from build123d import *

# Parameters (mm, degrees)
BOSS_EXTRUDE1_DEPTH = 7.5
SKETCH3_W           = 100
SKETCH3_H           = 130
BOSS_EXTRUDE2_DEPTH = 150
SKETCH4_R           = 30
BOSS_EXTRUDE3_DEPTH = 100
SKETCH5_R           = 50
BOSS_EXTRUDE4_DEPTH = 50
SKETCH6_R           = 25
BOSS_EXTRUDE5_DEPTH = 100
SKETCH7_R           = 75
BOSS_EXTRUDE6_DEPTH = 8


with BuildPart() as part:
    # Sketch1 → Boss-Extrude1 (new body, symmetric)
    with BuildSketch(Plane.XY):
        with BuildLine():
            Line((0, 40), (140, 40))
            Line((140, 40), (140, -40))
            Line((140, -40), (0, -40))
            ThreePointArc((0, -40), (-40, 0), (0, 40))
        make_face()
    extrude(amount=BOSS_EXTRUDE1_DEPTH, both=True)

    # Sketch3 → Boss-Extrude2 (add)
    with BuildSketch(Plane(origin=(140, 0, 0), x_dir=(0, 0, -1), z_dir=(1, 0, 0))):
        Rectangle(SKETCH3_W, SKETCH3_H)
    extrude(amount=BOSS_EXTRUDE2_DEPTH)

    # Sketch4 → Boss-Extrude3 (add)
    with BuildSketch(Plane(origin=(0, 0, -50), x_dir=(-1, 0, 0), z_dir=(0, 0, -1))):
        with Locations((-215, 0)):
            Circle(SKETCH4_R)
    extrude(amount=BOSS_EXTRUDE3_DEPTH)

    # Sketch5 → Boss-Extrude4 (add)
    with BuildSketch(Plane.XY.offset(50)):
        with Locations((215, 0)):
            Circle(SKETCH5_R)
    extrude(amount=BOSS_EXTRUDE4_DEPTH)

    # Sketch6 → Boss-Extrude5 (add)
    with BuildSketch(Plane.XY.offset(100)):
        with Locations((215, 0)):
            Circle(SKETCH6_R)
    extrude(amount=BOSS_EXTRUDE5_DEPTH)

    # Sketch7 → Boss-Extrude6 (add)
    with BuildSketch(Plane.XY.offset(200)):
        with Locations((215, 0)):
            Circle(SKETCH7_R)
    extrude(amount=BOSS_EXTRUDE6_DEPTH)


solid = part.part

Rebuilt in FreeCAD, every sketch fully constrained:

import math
import FreeCAD as App
import Part
import Sketcher
from FreeCAD import Vector
Q = App.Units.Quantity


def add_polygon(sketch, points):
    """Adds a closed chain of lines whose ends are joined by coincident constraints."""
    first, n = sketch.GeometryCount, len(points)
    for a, b in zip(points, points[1:] + points[:1]):
        sketch.addGeometry(Part.LineSegment(App.Vector(*a, 0), App.Vector(*b, 0)), False)
    for i in range(n):
        sketch.addConstraint(Sketcher.Constraint("Coincident", first + i, 2, first + (i + 1) % n, 1))

doc = App.newDocument("Part")
params = doc.addObject("Spreadsheet::Sheet", "Params")
for row, (alias, value) in enumerate([
    ("sketch1_radius", "40 mm"),
    ("sketch1_width", "140 mm"),
    ("pad1_length", "15 mm"),
    ("sketch2_width", "130 mm"),
    ("sketch2_height", "100 mm"),
    ("pad2_length", "150 mm"),
    ("sketch3_diameter", "60 mm"),
    ("pad3_length", "100 mm"),
    ("sketch4_diameter", "100 mm"),
    ("pad4_length", "50 mm"),
    ("sketch5_diameter", "50 mm"),
    ("pad5_length", "100 mm"),
    ("sketch6_diameter", "150 mm"),
    ("pad6_length", "8 mm"),
], start=1):
    params.set(f"A{row}", alias)
    params.set(f"B{row}", "=" + value)
    params.setAlias(f"B{row}", alias)

body = doc.addObject("PartDesign::Body", "Body")

# Sketch on XY plane
sketch1 = doc.addObject("Sketcher::SketchObject", "Sketch")
body.addObject(sketch1)
sketch1.AttachmentSupport = (doc.XY_Plane, [""])
sketch1.MapMode = "FlatFace"
sketch1.addGeometry([
    Part.LineSegment(Vector(140, 40, 0), Vector(0, 40, 0)),
    Part.ArcOfCircle(Part.Circle(Vector(0, 0, 0), Vector(0, 0, 1), 40), math.radians(90), math.radians(270)),
    Part.LineSegment(Vector(0, -40, 0), Vector(140, -40, 0)),
    Part.LineSegment(Vector(140, -40, 0), Vector(140, 40, 0)),
], False)
sketch1.addConstraint([
    Sketcher.Constraint("Tangent", 0, 2, 1, 1),
    Sketcher.Constraint("Tangent", 1, 2, 2, 1),
    Sketcher.Constraint("Coincident", 2, 2, 3, 1),
    Sketcher.Constraint("Coincident", 3, 2, 0, 1),
    Sketcher.Constraint("Horizontal", 0),
    Sketcher.Constraint("Horizontal", 2),
    Sketcher.Constraint("Vertical", 3),
    Sketcher.Constraint("Coincident", 1, 3, -1, 1),
    Sketcher.Constraint("Radius", 1, Q("40 mm")),
    Sketcher.Constraint("DistanceX", 0, 2, 0, 1, Q("140 mm")),
])
sketch1.setExpression("Constraints[8]", "Params.sketch1_radius")
sketch1.setExpression("Constraints[9]", "Params.sketch1_width")
pad1 = doc.addObject("PartDesign::Pad", "Pad")
body.addObject(pad1)
pad1.Profile = sketch1
pad1.setExpression("Length", "Params.pad1_length")
pad1.Midplane = True

# Sketch on YZ plane
sketch2 = doc.addObject("Sketcher::SketchObject", "Sketch001")
body.addObject(sketch2)
sketch2.AttachmentSupport = (doc.YZ_Plane, [""])
sketch2.MapMode = "FlatFace"
sketch2.AttachmentOffset = App.Placement(Vector(0, 0, 140), App.Rotation())
add_polygon(sketch2, [(65, 50), (-65, 50), (-65, -50), (65, -50)])  # lines 0-3
sketch2.addConstraint([
    Sketcher.Constraint("Horizontal", 0),
    Sketcher.Constraint("Vertical", 1),
    Sketcher.Constraint("Horizontal", 2),
    Sketcher.Constraint("Vertical", 3),
    Sketcher.Constraint("Symmetric", 0, 2, 2, 2, -1, 1),
    Sketcher.Constraint("DistanceX", 0, 2, 0, 1, Q("130 mm")),
    Sketcher.Constraint("DistanceY", 1, 2, 1, 1, Q("100 mm")),
])
sketch2.setExpression("Constraints[9]", "Params.sketch2_width")
sketch2.setExpression("Constraints[10]", "Params.sketch2_height")
pad2 = doc.addObject("PartDesign::Pad", "Pad001")
body.addObject(pad2)
pad2.Profile = sketch2
pad2.setExpression("Length", "Params.pad2_length")

# Sketch on XY plane
sketch3 = doc.addObject("Sketcher::SketchObject", "Sketch002")
body.addObject(sketch3)
sketch3.AttachmentSupport = (doc.XY_Plane, [""])
sketch3.MapMode = "FlatFace"
sketch3.AttachmentOffset = App.Placement(Vector(0, 0, -50), App.Rotation())
sketch3.addGeometry(Part.Circle(Vector(215, 0, 0), Vector(0, 0, 1), 30), False)
sketch3.addConstraint([
    Sketcher.Constraint("PointOnObject", 0, 3, -1),
    Sketcher.Constraint("Diameter", 0, Q("60 mm")),
    Sketcher.Constraint("DistanceX", -1, 1, 0, 3, Q("215 mm")),
])
sketch3.setExpression("Constraints[1]", "Params.sketch3_diameter")
pad3 = doc.addObject("PartDesign::Pad", "Pad002")
body.addObject(pad3)
pad3.Profile = sketch3
pad3.setExpression("Length", "Params.pad3_length")
pad3.Reversed = True

# Sketch on XY plane
sketch4 = doc.addObject("Sketcher::SketchObject", "Sketch003")
body.addObject(sketch4)
sketch4.AttachmentSupport = (doc.XY_Plane, [""])
sketch4.MapMode = "FlatFace"
sketch4.AttachmentOffset = App.Placement(Vector(0, 0, 50), App.Rotation())
sketch4.addGeometry(Part.Circle(Vector(215, 0, 0), Vector(0, 0, 1), 50), False)
sketch4.addConstraint([
    Sketcher.Constraint("PointOnObject", 0, 3, -1),
    Sketcher.Constraint("Diameter", 0, Q("100 mm")),
    Sketcher.Constraint("DistanceX", -1, 1, 0, 3, Q("215 mm")),
])
sketch4.setExpression("Constraints[1]", "Params.sketch4_diameter")
pad4 = doc.addObject("PartDesign::Pad", "Pad003")
body.addObject(pad4)
pad4.Profile = sketch4
pad4.setExpression("Length", "Params.pad4_length")

# Sketch on XY plane
sketch5 = doc.addObject("Sketcher::SketchObject", "Sketch004")
body.addObject(sketch5)
sketch5.AttachmentSupport = (doc.XY_Plane, [""])
sketch5.MapMode = "FlatFace"
sketch5.AttachmentOffset = App.Placement(Vector(0, 0, 100), App.Rotation())
sketch5.addGeometry(Part.Circle(Vector(215, 0, 0), Vector(0, 0, 1), 25), False)
sketch5.addConstraint([
    Sketcher.Constraint("PointOnObject", 0, 3, -1),
    Sketcher.Constraint("Diameter", 0, Q("50 mm")),
    Sketcher.Constraint("DistanceX", -1, 1, 0, 3, Q("215 mm")),
])
sketch5.setExpression("Constraints[1]", "Params.sketch5_diameter")
pad5 = doc.addObject("PartDesign::Pad", "Pad004")
body.addObject(pad5)
pad5.Profile = sketch5
pad5.setExpression("Length", "Params.pad5_length")

# Sketch on XY plane
sketch6 = doc.addObject("Sketcher::SketchObject", "Sketch005")
body.addObject(sketch6)
sketch6.AttachmentSupport = (doc.XY_Plane, [""])
sketch6.MapMode = "FlatFace"
sketch6.AttachmentOffset = App.Placement(Vector(0, 0, 200), App.Rotation())
sketch6.addGeometry(Part.Circle(Vector(215, 0, 0), Vector(0, 0, 1), 75), False)
sketch6.addConstraint([
    Sketcher.Constraint("PointOnObject", 0, 3, -1),
    Sketcher.Constraint("Diameter", 0, Q("150 mm")),
    Sketcher.Constraint("DistanceX", -1, 1, 0, 3, Q("215 mm")),
])
sketch6.setExpression("Constraints[1]", "Params.sketch6_diameter")
pad6 = doc.addObject("PartDesign::Pad", "Pad005")
body.addObject(pad6)
pad6.Profile = sketch6
pad6.setExpression("Length", "Params.pad6_length")

doc.recompute()
